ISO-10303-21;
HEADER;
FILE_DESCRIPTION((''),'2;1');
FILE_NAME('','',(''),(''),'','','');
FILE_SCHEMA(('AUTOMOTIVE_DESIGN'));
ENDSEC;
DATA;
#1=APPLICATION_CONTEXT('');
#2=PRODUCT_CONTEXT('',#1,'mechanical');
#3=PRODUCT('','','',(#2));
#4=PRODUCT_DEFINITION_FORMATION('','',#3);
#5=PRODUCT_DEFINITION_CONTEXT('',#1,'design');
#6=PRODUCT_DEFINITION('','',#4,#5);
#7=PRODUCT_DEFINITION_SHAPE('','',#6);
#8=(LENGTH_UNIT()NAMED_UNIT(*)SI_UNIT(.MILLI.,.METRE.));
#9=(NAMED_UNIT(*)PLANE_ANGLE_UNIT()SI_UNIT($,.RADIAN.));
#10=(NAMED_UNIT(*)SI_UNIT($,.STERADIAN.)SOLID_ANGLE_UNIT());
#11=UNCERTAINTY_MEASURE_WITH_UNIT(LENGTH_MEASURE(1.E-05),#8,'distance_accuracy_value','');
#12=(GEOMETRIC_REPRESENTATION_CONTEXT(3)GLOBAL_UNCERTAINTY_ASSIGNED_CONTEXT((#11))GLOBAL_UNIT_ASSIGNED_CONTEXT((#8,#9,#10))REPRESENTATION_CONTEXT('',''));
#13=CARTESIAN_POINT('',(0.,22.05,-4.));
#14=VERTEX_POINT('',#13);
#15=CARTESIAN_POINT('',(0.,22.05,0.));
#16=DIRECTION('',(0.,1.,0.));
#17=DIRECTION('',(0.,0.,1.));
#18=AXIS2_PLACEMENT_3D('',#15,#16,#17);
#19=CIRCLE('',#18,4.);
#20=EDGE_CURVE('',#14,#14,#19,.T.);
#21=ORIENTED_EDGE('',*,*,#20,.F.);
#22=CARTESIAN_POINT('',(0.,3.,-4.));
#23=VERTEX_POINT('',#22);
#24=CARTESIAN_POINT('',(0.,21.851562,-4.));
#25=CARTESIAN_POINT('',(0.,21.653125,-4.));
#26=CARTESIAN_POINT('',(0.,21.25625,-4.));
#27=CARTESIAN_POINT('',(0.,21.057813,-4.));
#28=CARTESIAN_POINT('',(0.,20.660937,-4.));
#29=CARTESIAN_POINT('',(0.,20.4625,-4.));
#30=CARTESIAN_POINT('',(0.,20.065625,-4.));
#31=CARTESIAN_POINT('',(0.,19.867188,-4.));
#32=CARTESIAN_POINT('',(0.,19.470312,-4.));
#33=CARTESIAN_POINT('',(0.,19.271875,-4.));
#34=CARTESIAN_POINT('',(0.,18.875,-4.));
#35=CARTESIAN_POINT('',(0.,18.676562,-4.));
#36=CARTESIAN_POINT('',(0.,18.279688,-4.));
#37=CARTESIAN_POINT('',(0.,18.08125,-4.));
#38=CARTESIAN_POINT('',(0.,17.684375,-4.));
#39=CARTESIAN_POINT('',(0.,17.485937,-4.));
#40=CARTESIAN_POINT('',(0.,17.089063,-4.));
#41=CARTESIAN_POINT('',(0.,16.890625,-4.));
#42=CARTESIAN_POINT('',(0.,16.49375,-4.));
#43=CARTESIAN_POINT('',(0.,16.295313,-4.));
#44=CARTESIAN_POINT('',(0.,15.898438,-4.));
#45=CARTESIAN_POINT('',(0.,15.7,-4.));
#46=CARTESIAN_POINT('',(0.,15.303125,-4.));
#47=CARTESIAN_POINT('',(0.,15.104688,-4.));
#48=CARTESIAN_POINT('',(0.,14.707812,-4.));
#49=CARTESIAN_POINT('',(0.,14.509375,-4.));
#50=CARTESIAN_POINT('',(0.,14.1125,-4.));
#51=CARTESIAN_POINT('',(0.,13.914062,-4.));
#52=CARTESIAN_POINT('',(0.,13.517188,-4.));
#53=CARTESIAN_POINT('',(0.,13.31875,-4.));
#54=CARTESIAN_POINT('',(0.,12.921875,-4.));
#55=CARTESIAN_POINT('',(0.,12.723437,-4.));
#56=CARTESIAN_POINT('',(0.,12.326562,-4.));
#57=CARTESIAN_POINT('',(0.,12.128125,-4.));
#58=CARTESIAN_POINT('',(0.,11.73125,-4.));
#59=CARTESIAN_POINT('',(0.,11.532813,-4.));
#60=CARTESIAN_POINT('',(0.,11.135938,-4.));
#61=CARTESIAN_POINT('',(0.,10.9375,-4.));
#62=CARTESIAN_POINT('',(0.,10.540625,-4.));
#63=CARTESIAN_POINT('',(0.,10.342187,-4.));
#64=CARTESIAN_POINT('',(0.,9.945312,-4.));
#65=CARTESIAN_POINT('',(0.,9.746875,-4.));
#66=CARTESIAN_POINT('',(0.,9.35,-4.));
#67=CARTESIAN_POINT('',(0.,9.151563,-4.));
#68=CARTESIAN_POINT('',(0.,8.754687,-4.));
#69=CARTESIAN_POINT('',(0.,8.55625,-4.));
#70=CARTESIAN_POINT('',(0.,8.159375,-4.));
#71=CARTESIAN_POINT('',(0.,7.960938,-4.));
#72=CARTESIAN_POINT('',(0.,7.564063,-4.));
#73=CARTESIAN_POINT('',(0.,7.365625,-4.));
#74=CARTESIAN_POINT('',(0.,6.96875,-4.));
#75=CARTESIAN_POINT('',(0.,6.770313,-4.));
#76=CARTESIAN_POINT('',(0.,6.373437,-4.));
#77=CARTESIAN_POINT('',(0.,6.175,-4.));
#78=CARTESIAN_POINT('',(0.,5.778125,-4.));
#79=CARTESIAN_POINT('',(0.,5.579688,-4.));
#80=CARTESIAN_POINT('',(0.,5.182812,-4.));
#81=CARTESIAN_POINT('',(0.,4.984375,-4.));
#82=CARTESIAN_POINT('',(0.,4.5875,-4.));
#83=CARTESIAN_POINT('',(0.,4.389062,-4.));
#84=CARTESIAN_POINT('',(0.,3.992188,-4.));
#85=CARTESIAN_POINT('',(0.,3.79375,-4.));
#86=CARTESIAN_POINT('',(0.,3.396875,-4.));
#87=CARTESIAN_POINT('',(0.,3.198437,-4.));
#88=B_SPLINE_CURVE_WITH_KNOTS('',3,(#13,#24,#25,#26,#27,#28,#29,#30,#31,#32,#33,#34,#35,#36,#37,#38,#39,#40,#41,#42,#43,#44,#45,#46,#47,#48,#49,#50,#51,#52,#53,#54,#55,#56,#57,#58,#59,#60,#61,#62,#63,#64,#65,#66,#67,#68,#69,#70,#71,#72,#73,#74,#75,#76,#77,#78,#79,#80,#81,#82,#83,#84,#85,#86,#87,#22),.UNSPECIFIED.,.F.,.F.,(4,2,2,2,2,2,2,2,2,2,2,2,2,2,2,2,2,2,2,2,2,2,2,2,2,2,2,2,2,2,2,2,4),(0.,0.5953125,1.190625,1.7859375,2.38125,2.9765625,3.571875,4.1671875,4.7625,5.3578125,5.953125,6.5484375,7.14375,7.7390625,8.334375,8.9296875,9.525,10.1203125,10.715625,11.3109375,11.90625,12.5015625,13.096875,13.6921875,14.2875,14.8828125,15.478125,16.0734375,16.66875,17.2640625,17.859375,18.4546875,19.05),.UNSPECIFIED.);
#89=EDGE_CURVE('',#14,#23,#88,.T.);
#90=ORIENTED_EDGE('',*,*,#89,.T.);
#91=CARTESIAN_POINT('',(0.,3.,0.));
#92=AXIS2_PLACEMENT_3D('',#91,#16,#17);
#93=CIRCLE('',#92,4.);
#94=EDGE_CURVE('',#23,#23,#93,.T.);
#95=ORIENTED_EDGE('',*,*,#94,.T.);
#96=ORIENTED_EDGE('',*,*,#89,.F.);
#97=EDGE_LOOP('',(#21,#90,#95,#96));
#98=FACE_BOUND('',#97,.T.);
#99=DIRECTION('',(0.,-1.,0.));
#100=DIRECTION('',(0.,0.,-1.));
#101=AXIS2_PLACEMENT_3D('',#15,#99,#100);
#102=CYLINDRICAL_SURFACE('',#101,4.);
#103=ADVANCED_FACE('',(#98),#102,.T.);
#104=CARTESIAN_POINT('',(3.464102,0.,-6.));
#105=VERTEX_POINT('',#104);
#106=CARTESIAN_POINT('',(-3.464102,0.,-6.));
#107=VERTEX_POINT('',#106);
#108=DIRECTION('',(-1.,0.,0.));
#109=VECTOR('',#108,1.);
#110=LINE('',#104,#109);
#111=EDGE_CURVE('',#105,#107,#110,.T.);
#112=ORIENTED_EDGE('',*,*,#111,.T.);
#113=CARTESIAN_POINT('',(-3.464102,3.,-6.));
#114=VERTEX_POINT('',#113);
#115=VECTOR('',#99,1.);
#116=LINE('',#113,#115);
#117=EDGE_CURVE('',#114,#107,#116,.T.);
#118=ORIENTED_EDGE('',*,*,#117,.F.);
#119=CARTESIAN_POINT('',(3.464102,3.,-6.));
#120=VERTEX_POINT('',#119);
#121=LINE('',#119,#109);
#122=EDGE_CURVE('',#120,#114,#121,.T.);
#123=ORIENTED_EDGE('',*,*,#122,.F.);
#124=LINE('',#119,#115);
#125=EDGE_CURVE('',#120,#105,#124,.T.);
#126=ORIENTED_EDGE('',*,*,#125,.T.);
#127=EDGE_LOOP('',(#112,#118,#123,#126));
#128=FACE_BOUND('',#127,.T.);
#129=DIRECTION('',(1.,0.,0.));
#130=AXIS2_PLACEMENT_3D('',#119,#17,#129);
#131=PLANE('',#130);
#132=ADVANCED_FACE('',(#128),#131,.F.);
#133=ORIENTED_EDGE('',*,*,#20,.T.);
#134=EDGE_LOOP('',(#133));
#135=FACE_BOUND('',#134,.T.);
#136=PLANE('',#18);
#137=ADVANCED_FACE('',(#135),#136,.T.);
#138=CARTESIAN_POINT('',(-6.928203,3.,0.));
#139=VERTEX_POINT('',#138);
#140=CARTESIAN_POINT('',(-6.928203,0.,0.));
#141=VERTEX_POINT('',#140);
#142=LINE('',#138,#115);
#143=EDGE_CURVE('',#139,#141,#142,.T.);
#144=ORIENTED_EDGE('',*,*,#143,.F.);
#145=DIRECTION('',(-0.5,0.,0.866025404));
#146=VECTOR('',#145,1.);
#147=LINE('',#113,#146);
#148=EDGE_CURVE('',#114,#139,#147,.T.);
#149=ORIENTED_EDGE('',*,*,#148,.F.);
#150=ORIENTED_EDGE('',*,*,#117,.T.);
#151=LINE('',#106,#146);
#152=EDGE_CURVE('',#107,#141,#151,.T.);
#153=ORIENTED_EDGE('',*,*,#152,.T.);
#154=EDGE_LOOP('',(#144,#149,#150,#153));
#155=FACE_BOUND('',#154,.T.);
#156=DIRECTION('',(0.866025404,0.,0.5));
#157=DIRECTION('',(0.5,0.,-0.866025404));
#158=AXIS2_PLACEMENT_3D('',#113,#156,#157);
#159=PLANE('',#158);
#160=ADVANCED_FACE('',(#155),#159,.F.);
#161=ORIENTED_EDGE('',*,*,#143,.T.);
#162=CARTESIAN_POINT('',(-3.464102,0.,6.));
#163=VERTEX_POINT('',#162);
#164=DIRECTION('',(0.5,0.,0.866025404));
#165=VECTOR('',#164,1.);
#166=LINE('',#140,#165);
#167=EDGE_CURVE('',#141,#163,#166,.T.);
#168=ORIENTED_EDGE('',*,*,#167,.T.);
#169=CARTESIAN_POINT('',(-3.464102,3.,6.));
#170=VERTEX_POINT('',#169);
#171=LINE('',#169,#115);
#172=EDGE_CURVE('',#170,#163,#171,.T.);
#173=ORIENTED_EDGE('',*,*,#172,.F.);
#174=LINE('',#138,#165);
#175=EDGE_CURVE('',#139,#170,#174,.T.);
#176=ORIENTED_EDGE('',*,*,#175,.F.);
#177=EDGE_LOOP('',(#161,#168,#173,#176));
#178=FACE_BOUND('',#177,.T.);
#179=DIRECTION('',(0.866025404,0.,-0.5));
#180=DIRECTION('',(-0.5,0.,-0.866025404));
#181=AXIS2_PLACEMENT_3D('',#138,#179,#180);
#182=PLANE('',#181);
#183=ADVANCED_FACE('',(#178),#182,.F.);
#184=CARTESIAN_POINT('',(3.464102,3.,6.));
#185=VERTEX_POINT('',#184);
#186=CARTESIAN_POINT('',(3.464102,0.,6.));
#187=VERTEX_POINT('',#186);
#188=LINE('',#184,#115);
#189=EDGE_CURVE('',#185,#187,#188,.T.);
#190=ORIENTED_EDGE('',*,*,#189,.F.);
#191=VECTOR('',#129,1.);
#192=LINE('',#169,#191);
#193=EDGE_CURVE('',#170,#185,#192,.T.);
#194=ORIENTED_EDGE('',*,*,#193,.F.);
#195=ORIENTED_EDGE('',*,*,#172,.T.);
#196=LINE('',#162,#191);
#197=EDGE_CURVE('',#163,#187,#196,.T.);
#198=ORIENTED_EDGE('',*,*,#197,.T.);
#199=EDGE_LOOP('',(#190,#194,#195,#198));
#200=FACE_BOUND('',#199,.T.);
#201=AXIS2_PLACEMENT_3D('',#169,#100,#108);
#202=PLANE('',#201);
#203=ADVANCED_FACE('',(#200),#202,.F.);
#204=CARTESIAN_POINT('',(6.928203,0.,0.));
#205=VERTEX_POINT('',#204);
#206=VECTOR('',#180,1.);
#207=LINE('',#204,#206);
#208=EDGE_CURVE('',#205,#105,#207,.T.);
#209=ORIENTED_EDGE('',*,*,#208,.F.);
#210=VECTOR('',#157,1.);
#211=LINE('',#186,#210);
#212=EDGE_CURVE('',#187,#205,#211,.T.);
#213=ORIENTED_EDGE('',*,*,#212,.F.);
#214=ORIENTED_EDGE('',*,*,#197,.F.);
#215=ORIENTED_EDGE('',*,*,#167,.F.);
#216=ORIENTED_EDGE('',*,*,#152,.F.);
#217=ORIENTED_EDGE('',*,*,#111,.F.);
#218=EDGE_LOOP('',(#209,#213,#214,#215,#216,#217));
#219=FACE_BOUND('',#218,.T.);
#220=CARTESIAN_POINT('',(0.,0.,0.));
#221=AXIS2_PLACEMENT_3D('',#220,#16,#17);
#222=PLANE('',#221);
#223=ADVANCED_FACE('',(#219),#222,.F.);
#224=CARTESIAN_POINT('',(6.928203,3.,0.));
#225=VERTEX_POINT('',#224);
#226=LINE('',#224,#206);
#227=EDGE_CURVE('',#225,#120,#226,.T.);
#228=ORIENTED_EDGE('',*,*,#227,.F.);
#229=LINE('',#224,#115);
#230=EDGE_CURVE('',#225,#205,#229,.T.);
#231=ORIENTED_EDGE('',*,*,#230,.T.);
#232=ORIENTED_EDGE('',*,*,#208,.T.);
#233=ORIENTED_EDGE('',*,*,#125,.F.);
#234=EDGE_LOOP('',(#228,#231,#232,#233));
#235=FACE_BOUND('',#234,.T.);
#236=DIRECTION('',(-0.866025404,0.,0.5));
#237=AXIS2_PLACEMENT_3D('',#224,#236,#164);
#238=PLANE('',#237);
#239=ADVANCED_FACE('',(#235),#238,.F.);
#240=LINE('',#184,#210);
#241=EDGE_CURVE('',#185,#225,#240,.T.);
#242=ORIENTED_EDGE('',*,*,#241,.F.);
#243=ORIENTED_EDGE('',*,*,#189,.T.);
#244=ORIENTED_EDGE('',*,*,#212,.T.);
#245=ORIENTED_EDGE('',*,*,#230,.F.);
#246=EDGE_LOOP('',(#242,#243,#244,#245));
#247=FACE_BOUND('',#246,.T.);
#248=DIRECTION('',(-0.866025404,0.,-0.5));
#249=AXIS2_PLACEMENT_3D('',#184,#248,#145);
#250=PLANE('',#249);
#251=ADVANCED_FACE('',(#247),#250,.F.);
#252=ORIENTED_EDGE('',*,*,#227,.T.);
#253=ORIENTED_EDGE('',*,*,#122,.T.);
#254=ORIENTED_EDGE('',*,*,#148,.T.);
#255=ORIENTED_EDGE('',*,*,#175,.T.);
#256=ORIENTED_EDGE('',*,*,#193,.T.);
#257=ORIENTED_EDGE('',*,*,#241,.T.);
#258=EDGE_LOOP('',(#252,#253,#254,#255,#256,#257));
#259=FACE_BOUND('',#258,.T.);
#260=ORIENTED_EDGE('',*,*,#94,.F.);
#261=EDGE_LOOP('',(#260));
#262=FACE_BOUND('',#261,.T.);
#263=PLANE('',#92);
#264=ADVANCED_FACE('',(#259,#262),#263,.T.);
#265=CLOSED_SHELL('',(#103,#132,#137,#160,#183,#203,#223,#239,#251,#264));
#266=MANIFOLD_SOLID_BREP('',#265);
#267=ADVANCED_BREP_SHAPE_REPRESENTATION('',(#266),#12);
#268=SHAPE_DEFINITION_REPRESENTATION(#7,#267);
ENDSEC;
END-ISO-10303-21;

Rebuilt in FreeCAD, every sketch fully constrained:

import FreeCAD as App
import Part
import Sketcher
from FreeCAD import Vector
Q = App.Units.Quantity


def add_polygon(sketch, points):
    """Adds a closed chain of lines whose ends are joined by coincident constraints."""
    first, n = sketch.GeometryCount, len(points)
    for a, b in zip(points, points[1:] + points[:1]):
        sketch.addGeometry(Part.LineSegment(App.Vector(*a, 0), App.Vector(*b, 0)), False)
    for i in range(n):
        sketch.addConstraint(Sketcher.Constraint("Coincident", first + i, 2, first + (i + 1) % n, 1))

doc = App.newDocument("Part")
body = doc.addObject("PartDesign::Body", "Body")

sketch1 = body.newObject("Sketcher::SketchObject", "Sketch")
sketch1.AttachmentSupport = (doc.getObject("XZ_Plane"), [""])
sketch1.MapMode = "FlatFace"
add_polygon(sketch1, [(6.928203, 0), (3.464102, -6), (-3.464102, -6), (-6.928203, 0), (-3.464102, 6), (3.464102, 6)])
sketch1.addConstraint(Sketcher.Constraint("Horizontal", 1))
sketch1.addConstraint(Sketcher.Constraint("Horizontal", 4))
sketch1.addConstraint(Sketcher.Constraint("Symmetric", 0, 2, 3, 2, -1, 1))
sketch1.addConstraint(Sketcher.Constraint("Symmetric", 2, 2, 5, 2, -1, 1))
sketch1.addConstraint(Sketcher.Constraint("PointOnObject", 2, 2, -1))
sketch1.addConstraint(Sketcher.Constraint("Parallel", 2, 5))
sketch1.addConstraint(Sketcher.Constraint("Vertical", 1, 2, 3, 2))
sketch1.addConstraint(Sketcher.Constraint("Angle", 0, Q("-120 deg")))
sketch1.addConstraint(Sketcher.Constraint("DistanceY", 0, 2, -1, 1, 6.0))
sketch1.addConstraint(Sketcher.Constraint("DistanceX", -1, 1, 0, 2, 3.464102))
pad1 = body.newObject("PartDesign::Pad", "Pad")
pad1.Profile = sketch1
pad1.Length = 3
pad1.Reversed = True

sketch2 = body.newObject("Sketcher::SketchObject", "Sketch001")
sketch2.AttachmentSupport = (doc.getObject("XZ_Plane"), [""])
sketch2.MapMode = "FlatFace"
sketch2.AttachmentOffset = App.Placement(Vector(0, 0, -3), App.Rotation())
sketch2.addGeometry(Part.Circle(Vector(0, 0, 0), Vector(0, 0, 1), 4), False)
sketch2.addConstraint(Sketcher.Constraint("Coincident", 0, 3, -1, 1))
sketch2.addConstraint(Sketcher.Constraint("Diameter", 0, 8.0))
pad2 = body.newObject("PartDesign::Pad", "Pad001")
pad2.Profile = sketch2
pad2.Length = 19.05
pad2.Reversed = True

doc.recompute()
